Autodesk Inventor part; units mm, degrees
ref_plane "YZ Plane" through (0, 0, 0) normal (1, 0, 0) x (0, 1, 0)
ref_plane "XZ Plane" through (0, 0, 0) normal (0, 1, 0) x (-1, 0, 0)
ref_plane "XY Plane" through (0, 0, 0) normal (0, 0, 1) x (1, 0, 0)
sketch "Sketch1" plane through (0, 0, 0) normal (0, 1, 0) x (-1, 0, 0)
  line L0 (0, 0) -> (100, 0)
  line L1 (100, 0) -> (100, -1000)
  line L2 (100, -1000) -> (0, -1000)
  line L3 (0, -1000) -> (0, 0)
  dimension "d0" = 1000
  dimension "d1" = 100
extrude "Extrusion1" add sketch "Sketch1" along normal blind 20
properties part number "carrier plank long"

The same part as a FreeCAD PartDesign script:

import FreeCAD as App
import Part
import Sketcher
Q = App.Units.Quantity


def add_polygon(sketch, points):
    """Adds a closed chain of lines whose ends are joined by coincident constraints."""
    first, n = sketch.GeometryCount, len(points)
    for a, b in zip(points, points[1:] + points[:1]):
        sketch.addGeometry(Part.LineSegment(App.Vector(*a, 0), App.Vector(*b, 0)), False)
    for i in range(n):
        sketch.addConstraint(Sketcher.Constraint("Coincident", first + i, 2, first + (i + 1) % n, 1))

doc = App.newDocument("Part")
body = doc.addObject("PartDesign::Body", "Body")

# Sketch on XZ plane
sketch1 = doc.addObject("Sketcher::SketchObject", "Sketch")
body.addObject(sketch1)
sketch1.AttachmentSupport = (doc.XZ_Plane, [""])
sketch1.MapMode = "FlatFace"
add_polygon(sketch1, [(-100, 0), (0, 0), (0, -1000), (-100, -1000)])  # lines 0-3
sketch1.addConstraint(Sketcher.Constraint("Horizontal", 0))
sketch1.addConstraint(Sketcher.Constraint("Vertical", 1))
sketch1.addConstraint(Sketcher.Constraint("Horizontal", 2))
sketch1.addConstraint(Sketcher.Constraint("Vertical", 3))
sketch1.addConstraint(Sketcher.Constraint("Coincident", 0, 2, -1, 1))
sketch1.addConstraint(Sketcher.Constraint("DistanceX", 0, 1, 0, 2, Q("100 mm")))
sketch1.addConstraint(Sketcher.Constraint("DistanceY", 1, 2, 1, 1, Q("1000 mm")))
pad1 = doc.addObject("PartDesign::Pad", "Pad")
body.addObject(pad1)
pad1.Profile = sketch1
pad1.Length = 20
pad1.Reversed = True

doc.recompute()
